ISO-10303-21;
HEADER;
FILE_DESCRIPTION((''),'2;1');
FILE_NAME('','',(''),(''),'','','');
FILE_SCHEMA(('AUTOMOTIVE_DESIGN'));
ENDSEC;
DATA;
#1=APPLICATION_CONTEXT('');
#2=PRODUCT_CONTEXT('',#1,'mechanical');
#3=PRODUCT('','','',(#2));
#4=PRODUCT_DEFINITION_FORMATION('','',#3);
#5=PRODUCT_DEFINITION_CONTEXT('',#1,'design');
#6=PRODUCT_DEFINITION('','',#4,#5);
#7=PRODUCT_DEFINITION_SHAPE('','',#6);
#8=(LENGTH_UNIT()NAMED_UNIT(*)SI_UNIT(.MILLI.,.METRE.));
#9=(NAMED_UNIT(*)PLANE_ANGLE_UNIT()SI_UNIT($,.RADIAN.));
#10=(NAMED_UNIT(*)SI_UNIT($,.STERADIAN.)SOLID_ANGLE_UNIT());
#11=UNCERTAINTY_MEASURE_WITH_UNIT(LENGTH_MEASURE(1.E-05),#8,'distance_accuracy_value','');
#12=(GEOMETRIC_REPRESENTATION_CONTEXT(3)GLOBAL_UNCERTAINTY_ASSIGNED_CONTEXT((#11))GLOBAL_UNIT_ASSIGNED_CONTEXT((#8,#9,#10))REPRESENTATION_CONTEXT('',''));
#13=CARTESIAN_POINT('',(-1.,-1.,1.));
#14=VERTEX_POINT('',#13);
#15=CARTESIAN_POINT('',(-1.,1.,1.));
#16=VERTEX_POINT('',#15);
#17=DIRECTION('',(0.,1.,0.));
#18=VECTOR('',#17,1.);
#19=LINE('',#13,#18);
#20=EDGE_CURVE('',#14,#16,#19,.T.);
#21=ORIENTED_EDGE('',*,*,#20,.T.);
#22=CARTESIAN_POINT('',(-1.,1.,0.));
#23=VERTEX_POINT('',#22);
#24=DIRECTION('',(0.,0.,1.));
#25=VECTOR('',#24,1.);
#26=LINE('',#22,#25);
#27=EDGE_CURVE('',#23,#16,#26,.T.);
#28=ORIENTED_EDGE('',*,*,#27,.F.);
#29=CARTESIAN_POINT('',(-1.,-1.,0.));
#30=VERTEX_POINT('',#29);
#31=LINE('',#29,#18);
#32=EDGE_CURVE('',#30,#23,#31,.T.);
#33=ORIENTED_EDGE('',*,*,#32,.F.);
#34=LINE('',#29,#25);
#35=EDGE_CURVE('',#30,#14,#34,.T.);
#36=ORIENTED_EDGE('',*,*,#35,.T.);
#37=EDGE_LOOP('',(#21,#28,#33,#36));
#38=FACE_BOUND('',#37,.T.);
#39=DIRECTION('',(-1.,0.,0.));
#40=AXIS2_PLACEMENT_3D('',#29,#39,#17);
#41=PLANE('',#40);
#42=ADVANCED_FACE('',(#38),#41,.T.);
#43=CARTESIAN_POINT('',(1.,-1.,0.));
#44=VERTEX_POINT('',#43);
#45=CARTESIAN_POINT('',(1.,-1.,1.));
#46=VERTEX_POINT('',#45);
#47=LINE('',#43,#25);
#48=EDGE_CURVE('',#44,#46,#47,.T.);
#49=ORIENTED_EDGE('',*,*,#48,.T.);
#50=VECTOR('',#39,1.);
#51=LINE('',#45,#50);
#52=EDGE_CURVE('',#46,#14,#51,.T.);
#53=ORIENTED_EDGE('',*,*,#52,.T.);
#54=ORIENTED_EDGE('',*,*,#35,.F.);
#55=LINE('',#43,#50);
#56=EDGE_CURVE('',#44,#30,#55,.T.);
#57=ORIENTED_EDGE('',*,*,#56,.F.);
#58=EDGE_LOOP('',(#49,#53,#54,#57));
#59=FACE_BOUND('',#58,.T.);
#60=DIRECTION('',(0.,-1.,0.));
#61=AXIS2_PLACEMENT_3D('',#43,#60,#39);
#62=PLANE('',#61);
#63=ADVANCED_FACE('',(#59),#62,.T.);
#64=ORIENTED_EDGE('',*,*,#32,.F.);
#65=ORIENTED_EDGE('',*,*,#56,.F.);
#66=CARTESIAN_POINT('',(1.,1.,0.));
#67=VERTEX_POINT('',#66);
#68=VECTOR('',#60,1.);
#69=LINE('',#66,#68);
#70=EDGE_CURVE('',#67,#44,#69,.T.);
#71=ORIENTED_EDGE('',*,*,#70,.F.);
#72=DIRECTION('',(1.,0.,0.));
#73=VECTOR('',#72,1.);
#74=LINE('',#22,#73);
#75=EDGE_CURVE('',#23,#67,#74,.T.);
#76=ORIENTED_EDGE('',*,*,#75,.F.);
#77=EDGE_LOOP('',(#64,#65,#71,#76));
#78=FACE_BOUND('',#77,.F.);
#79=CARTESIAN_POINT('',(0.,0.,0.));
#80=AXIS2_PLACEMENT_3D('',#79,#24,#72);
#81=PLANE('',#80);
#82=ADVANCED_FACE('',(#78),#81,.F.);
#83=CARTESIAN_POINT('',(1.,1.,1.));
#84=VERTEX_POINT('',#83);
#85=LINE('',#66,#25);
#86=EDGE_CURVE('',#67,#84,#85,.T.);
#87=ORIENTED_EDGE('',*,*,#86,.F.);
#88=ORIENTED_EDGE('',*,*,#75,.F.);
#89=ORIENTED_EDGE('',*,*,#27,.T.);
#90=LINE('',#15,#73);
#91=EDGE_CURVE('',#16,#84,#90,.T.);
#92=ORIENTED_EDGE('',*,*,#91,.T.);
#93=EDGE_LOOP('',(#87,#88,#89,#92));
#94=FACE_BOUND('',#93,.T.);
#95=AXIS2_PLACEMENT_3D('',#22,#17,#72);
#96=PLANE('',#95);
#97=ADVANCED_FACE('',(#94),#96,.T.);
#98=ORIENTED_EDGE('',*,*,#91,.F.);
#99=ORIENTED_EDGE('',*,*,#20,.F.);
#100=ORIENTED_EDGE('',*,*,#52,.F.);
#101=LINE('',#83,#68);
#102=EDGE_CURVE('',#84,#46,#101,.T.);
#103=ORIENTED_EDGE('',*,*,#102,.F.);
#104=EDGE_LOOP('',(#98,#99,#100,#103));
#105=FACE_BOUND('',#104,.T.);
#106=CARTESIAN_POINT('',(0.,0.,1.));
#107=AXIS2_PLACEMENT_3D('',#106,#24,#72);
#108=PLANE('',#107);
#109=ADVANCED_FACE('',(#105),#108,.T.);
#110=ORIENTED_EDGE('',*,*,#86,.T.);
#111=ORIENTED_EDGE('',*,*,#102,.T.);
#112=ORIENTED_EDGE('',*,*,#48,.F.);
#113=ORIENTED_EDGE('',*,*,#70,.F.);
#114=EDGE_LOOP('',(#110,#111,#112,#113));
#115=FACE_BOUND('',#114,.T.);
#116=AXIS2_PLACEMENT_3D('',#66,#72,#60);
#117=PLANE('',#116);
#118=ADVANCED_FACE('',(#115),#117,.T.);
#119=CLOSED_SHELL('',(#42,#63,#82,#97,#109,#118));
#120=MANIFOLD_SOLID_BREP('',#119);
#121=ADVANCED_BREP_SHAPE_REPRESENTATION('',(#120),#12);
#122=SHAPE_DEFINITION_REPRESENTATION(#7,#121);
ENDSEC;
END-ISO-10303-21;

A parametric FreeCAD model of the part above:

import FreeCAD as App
import Part
import Sketcher

V = App.Vector
Q = App.Units.Quantity

doc = App.newDocument("Part")
params = doc.addObject("Spreadsheet::Sheet", "Params")
for row, (alias, value) in enumerate([
    ("sketch1_width", "2 mm"),
    ("pad1_length", "1 mm"),
], start=1):
    params.set(f"A{row}", alias)
    params.set(f"B{row}", "=" + value)
    params.setAlias(f"B{row}", alias)

body = doc.addObject("PartDesign::Body", "Body")

# Sketch on XY plane
sketch1 = body.newObject("Sketcher::SketchObject", "Sketch")
sketch1.AttachmentSupport = (doc.getObject("XY_Plane"), [""])
sketch1.MapMode = "FlatFace"
sketch1.addGeometry(Part.LineSegment(V(-1, -1, 0), V(1, -1, 0)), False)
sketch1.addGeometry(Part.LineSegment(V(1, -1, 0), V(1, 1, 0)), False)
sketch1.addGeometry(Part.LineSegment(V(1, 1, 0), V(-1, 1, 0)), False)
sketch1.addGeometry(Part.LineSegment(V(-1, 1, 0), V(-1, -1, 0)), False)
sketch1.addConstraint(Sketcher.Constraint("Coincident", 0, 2, 1, 1))
sketch1.addConstraint(Sketcher.Constraint("Coincident", 1, 2, 2, 1))
sketch1.addConstraint(Sketcher.Constraint("Coincident", 2, 2, 3, 1))
sketch1.addConstraint(Sketcher.Constraint("Coincident", 3, 2, 0, 1))
sketch1.addConstraint(Sketcher.Constraint("Horizontal", 0))
sketch1.addConstraint(Sketcher.Constraint("Vertical", 1))
sketch1.addConstraint(Sketcher.Constraint("Horizontal", 2))
sketch1.addConstraint(Sketcher.Constraint("Vertical", 3))
sketch1.addConstraint(Sketcher.Constraint("Symmetric", 0, 2, 2, 2, -1, 1))
sketch1.addConstraint(Sketcher.Constraint("Equal", 2, 1))
sketch1.addConstraint(Sketcher.Constraint("DistanceX", 0, 1, 0, 2, Q("2 mm")))
sketch1.setExpression("Constraints[10]", "Params.sketch1_width")
pad1 = body.newObject("PartDesign::Pad", "Pad")
pad1.Profile = sketch1
pad1.setExpression("Length", "Params.pad1_length")

doc.recompute()
